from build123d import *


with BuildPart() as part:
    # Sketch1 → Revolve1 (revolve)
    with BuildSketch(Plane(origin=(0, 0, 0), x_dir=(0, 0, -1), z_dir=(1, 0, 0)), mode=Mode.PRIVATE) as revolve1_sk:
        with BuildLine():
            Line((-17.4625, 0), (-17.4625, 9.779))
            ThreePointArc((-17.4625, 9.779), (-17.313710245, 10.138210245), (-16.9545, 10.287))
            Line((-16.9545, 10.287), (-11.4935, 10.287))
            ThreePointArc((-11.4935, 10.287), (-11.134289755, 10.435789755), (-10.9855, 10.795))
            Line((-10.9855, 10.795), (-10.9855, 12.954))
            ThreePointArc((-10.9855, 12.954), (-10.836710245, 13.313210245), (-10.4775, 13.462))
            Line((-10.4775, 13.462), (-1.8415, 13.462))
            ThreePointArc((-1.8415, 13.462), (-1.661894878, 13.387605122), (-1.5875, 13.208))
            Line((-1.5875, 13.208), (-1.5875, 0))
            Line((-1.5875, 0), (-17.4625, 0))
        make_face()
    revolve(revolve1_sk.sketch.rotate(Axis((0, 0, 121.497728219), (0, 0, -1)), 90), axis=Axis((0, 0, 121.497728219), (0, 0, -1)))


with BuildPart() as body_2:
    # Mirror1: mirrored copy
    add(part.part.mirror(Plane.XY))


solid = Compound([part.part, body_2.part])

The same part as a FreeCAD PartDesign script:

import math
import FreeCAD as App
import Part
import Sketcher
Q = App.Units.Quantity

doc = App.newDocument("Part")
params = doc.addObject("Spreadsheet::Sheet", "Params")
for row, (alias, value) in enumerate([
    ("sketch1_radius", "0.01 in"),
    ("sketch1_radius2", "0.02 in"),
    ("sketch1_width", "0.52 in"),
    ("sketch1_height", "0.34 in"),
    ("sketch1_width2", "0.385 in"),
    ("revolution_angle", "360 deg"),
], start=1):
    params.set(f"A{row}", alias)
    params.set(f"B{row}", "=" + value)
    params.setAlias(f"B{row}", alias)

body = doc.addObject("PartDesign::Body", "Body")

# Sketch on YZ plane
sketch1 = body.newObject("Sketcher::SketchObject", "Sketch")
sketch1.AttachmentSupport = (doc.getObject("YZ_Plane"), [""])
sketch1.MapMode = "FlatFace"
sketch1.addGeometry(Part.LineSegment(App.Vector(9.779, 17.4625, 0), App.Vector(0, 17.4625, 0)), False)
sketch1.addGeometry(Part.LineSegment(App.Vector(0, 17.4625, 0), App.Vector(0, 1.5875, 0)), False)
sketch1.addGeometry(Part.LineSegment(App.Vector(0, 1.5875, 0), App.Vector(13.208, 1.5875, 0)), False)
sketch1.addGeometry(Part.ArcOfCircle(Part.Circle(App.Vector(13.208, 1.8415, 0), App.Vector(0, 0, 1), 0.254), math.radians(-90), math.radians(0)), False)
sketch1.addGeometry(Part.LineSegment(App.Vector(13.462, 1.8415, 0), App.Vector(13.462, 10.4775, 0)), False)
sketch1.addGeometry(Part.ArcOfCircle(Part.Circle(App.Vector(12.954, 10.4775, 0), App.Vector(0, 0, 1), 0.508), math.radians(0), math.radians(90)), False)
sketch1.addGeometry(Part.LineSegment(App.Vector(12.954, 10.9855, 0), App.Vector(10.795, 10.9855, 0)), False)
sketch1.addGeometry(Part.ArcOfCircle(Part.Circle(App.Vector(10.795, 11.4935, 0), App.Vector(0, 0, 1), 0.508), math.radians(180), math.radians(270)), False)
sketch1.addGeometry(Part.LineSegment(App.Vector(10.287, 11.4935, 0), App.Vector(10.287, 16.9545, 0)), False)
sketch1.addGeometry(Part.ArcOfCircle(Part.Circle(App.Vector(9.779, 16.9545, 0), App.Vector(0, 0, 1), 0.508), math.radians(0), math.radians(90)), False)
sketch1.addConstraint(Sketcher.Constraint("Coincident", 0, 2, 1, 1))
sketch1.addConstraint(Sketcher.Constraint("Coincident", 1, 2, 2, 1))
sketch1.addConstraint(Sketcher.Constraint("Tangent", 2, 2, 3, 1))
sketch1.addConstraint(Sketcher.Constraint("Tangent", 3, 2, 4, 1))
sketch1.addConstraint(Sketcher.Constraint("Tangent", 4, 2, 5, 1))
sketch1.addConstraint(Sketcher.Constraint("Tangent", 5, 2, 6, 1))
sketch1.addConstraint(Sketcher.Constraint("Tangent", 6, 2, 7, 2))
sketch1.addConstraint(Sketcher.Constraint("Tangent", 7, 1, 8, 1))
sketch1.addConstraint(Sketcher.Constraint("Tangent", 8, 2, 9, 1))
sketch1.addConstraint(Sketcher.Constraint("Tangent", 9, 2, 0, 1))
sketch1.addConstraint(Sketcher.Constraint("Horizontal", 0))
sketch1.addConstraint(Sketcher.Constraint("Vertical", 1))
sketch1.addConstraint(Sketcher.Constraint("Horizontal", 2))
sketch1.addConstraint(Sketcher.Constraint("Vertical", 4))
sketch1.addConstraint(Sketcher.Constraint("Horizontal", 6))
sketch1.addConstraint(Sketcher.Constraint("Vertical", 8))
sketch1.addConstraint(Sketcher.Constraint("Equal", 5, 7))
sketch1.addConstraint(Sketcher.Constraint("Equal", 7, 9))
sketch1.addConstraint(Sketcher.Constraint("PointOnObject", 0, 2, -2))
sketch1.addConstraint(Sketcher.Constraint("Radius", 3, Q("0.01 in")))
sketch1.addConstraint(Sketcher.Constraint("Radius", 5, Q("0.02 in")))
sketch1.addConstraint(Sketcher.Constraint("DistanceX", 2, 1, 2, 2, Q("0.52 in")))
sketch1.addConstraint(Sketcher.Constraint("DistanceY", 4, 1, 4, 2, Q("0.34 in")))
sketch1.addConstraint(Sketcher.Constraint("DistanceX", 0, 2, 0, 1, Q("0.385 in")))
sketch1.addConstraint(Sketcher.Constraint("DistanceY", 1, 2, 1, 1, Q("0.625 in")))
sketch1.addConstraint(Sketcher.Constraint("DistanceY", -1, 1, 0, 2, Q("0.6875 in")))
sketch1.setExpression("Constraints[19]", "Params.sketch1_radius")
sketch1.setExpression("Constraints[20]", "Params.sketch1_radius2")
sketch1.setExpression("Constraints[21]", "Params.sketch1_width")
sketch1.setExpression("Constraints[22]", "Params.sketch1_height")
sketch1.setExpression("Constraints[23]", "Params.sketch1_width2")
revolution = body.newObject("PartDesign::Revolution", "Revolution")
revolution.Profile = sketch1
revolution.ReferenceAxis = (sketch1, ["V_Axis"])
revolution.setExpression("Angle", "Params.revolution_angle")
body2 = doc.addObject("PartDesign::Body", "Body001")
doc.recompute()

mirroring = doc.addObject("Part::Mirroring", "Mirroring")
mirroring.Source = body
mirroring.Base = App.Vector(0, 0, 0)
mirroring.Normal = App.Vector(0, 0, 1)
body2.BaseFeature = mirroring
doc.recompute()
mirroring.Visibility = False

doc.recompute()
